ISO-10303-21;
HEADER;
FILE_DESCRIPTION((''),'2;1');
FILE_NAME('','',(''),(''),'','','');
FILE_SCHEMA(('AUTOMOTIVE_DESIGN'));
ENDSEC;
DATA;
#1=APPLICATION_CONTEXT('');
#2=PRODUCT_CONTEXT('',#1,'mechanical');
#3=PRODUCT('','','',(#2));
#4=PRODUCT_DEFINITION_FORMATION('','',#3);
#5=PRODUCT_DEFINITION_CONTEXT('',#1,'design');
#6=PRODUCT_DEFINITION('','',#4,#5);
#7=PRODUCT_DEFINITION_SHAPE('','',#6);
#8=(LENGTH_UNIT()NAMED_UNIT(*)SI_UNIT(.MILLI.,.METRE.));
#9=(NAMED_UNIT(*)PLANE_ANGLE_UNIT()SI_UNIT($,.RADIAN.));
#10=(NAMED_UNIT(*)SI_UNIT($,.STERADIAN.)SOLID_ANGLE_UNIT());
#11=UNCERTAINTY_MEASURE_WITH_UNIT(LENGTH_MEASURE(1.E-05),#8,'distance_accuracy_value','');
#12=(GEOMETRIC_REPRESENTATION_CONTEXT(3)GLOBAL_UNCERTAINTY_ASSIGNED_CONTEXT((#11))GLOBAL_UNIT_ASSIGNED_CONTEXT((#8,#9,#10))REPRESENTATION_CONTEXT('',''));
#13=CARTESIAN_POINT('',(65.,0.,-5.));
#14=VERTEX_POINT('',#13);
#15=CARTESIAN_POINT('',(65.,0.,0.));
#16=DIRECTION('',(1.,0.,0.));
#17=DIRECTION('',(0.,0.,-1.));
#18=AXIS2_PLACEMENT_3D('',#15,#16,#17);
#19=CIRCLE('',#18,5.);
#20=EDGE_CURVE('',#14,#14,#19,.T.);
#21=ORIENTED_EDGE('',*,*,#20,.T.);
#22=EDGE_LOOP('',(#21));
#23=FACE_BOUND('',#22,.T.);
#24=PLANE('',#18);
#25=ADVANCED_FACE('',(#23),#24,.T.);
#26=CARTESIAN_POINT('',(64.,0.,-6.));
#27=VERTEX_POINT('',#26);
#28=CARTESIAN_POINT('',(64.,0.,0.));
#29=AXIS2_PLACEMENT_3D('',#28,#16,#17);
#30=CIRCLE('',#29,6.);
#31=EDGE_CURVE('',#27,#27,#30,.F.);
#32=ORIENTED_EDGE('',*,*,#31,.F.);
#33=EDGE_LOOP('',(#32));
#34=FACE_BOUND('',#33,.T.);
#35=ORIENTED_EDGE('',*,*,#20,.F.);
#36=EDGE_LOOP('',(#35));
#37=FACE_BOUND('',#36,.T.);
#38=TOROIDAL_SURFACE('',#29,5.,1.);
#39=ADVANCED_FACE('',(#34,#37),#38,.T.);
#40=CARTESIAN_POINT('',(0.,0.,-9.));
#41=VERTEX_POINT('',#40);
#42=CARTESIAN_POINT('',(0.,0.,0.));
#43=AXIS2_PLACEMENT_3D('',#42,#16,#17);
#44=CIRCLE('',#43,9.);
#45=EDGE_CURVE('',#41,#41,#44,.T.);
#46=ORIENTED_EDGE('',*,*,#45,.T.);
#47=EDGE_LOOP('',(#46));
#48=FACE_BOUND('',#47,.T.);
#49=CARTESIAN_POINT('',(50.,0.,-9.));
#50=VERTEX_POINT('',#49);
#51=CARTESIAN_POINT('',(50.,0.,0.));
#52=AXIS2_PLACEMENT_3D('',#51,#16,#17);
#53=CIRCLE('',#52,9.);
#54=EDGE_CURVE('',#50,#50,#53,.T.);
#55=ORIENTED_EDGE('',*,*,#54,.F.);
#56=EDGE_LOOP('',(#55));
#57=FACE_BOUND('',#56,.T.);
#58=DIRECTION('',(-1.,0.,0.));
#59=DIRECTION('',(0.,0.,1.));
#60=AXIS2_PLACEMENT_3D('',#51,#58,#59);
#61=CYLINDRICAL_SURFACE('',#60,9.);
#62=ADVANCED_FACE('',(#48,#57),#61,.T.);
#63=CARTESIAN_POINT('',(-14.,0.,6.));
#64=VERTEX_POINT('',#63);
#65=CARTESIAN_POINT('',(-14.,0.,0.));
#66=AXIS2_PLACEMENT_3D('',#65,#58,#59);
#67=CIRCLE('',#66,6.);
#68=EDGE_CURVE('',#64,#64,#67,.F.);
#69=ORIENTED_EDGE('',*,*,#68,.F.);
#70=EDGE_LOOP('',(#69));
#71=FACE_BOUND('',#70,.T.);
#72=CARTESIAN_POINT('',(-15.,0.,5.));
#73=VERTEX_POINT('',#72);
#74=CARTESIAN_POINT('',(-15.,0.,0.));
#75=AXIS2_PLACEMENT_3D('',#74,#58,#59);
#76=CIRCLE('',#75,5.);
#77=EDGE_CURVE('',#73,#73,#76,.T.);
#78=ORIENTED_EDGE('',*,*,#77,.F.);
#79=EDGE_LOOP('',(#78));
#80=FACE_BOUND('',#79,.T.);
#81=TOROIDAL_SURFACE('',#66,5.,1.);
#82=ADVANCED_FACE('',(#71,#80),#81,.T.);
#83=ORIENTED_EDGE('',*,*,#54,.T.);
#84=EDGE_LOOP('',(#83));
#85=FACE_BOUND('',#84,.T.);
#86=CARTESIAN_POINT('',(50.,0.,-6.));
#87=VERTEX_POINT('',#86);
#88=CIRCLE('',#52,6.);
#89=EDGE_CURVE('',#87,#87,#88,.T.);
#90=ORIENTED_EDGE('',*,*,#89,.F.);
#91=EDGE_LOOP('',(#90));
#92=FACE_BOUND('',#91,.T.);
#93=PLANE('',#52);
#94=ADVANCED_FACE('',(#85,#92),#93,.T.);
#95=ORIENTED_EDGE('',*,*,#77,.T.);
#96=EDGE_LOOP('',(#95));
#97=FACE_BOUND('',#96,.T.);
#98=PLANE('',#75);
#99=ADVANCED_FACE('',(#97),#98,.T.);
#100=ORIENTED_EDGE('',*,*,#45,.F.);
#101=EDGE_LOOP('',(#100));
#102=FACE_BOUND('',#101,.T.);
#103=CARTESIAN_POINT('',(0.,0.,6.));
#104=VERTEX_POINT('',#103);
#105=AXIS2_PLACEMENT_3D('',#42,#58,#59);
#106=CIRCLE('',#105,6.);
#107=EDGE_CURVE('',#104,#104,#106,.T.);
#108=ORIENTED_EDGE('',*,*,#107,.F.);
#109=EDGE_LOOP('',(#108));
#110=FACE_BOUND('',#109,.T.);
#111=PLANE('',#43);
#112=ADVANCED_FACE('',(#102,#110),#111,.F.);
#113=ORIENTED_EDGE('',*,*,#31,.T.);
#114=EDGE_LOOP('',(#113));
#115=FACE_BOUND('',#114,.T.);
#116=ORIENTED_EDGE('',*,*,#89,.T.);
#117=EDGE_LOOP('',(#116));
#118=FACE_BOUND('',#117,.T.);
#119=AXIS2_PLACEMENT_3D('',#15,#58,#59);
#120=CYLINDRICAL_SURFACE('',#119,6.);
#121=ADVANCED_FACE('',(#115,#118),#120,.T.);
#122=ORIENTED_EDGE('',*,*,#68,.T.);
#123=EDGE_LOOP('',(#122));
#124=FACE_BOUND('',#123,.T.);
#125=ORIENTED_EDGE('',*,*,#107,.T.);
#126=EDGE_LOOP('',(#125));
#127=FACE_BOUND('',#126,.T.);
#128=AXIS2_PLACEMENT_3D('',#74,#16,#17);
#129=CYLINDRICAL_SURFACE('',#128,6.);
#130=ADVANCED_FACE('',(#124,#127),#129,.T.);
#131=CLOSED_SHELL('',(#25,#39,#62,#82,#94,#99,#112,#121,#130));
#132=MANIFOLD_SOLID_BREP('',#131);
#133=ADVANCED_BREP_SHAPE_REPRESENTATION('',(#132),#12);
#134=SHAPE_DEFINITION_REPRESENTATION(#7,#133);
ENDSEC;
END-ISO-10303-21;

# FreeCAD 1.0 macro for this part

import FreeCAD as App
import Part
import Sketcher

V = App.Vector


def edges_at(feature, points):
    """Names of the edges that pass closest to the given points."""
    edges = feature.Shape.Edges
    near = lambda p: min(range(len(edges)), key=lambda i: edges[i].distToShape(Part.Vertex(*p))[0])
    return sorted({f"Edge{near(p) + 1}" for p in points})

doc = App.newDocument("Part")
body = doc.addObject("PartDesign::Body", "Body")

sketch1 = body.newObject("Sketcher::SketchObject", "Sketch")
sketch1.AttachmentSupport = (doc.getObject("YZ_Plane"), [""])
sketch1.MapMode = "FlatFace"
sketch1.addGeometry(Part.Circle(V(0, 0, 0), V(0, 0, 1), 9), False)
sketch1.addConstraint([
    Sketcher.Constraint("Coincident", 0, 3, -1, 1),
    Sketcher.Constraint("Diameter", 0, 18.0),
])
pad1 = body.newObject("PartDesign::Pad", "Pad")
pad1.Profile = sketch1
pad1.Length = 50

sketch2 = body.newObject("Sketcher::SketchObject", "Sketch001")
sketch2.AttachmentSupport = (doc.getObject("YZ_Plane"), [""])
sketch2.MapMode = "FlatFace"
sketch2.AttachmentOffset = App.Placement(V(0, 0, 50), App.Rotation())
sketch2.addGeometry(Part.Circle(V(0, 0, 0), V(0, 0, 1), 6), False)
sketch2.addConstraint([
    Sketcher.Constraint("Coincident", 0, 3, -1, 1),
    Sketcher.Constraint("Diameter", 0, 12.0),
])
pad2 = body.newObject("PartDesign::Pad", "Pad001")
pad2.Profile = sketch2
pad2.Length = 15

sketch3 = body.newObject("Sketcher::SketchObject", "Sketch002")
sketch3.AttachmentSupport = (doc.getObject("YZ_Plane"), [""])
sketch3.MapMode = "FlatFace"
sketch3.AttachmentOffset = App.Placement(V(0, 0, -15), App.Rotation())
sketch3.addGeometry(Part.Circle(V(0, 0, 0), V(0, 0, 1), 6), False)
sketch3.addConstraint([
    Sketcher.Constraint("Coincident", 0, 3, -1, 1),
    Sketcher.Constraint("Diameter", 0, 12.0),
])
pad3 = body.newObject("PartDesign::Pad", "Pad002")
pad3.Profile = sketch3
pad3.Length = 15
doc.recompute()

fillet = body.newObject("PartDesign::Fillet", "Fillet")
fillet.Base = (pad3, edges_at(pad3, [(-15, 0, 6)]))
fillet.Radius = 1
doc.recompute()

fillet2 = body.newObject("PartDesign::Fillet", "Fillet001")
fillet2.Base = (fillet, edges_at(fillet, [(65, 0, 6)]))
fillet2.Radius = 1

doc.recompute()
